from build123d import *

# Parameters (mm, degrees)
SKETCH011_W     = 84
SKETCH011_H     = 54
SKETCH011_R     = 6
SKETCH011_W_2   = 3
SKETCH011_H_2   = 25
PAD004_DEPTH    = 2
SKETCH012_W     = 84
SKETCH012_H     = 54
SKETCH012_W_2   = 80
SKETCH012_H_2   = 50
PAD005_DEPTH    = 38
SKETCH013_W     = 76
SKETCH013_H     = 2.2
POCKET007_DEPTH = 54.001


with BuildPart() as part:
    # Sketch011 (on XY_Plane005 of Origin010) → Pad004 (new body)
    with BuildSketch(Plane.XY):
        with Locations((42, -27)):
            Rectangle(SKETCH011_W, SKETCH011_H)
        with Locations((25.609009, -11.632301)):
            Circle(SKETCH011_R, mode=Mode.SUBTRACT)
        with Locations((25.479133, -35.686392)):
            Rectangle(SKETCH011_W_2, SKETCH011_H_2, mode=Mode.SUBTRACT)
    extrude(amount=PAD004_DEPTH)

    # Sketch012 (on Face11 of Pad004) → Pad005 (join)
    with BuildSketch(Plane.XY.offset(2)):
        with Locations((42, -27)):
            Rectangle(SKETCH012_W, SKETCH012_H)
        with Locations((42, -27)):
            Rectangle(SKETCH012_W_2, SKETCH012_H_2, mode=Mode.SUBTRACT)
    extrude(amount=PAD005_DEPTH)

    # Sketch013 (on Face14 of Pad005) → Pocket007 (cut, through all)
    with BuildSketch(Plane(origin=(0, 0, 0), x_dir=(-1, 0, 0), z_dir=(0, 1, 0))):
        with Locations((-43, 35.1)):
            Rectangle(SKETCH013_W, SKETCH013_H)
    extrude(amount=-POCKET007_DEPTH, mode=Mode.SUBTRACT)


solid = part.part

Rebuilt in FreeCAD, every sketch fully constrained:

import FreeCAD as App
import Part
import Sketcher

V = App.Vector
Q = App.Units.Quantity


def add_polygon(sketch, points):
    """Adds a closed chain of lines whose ends are joined by coincident constraints."""
    first, n = sketch.GeometryCount, len(points)
    for a, b in zip(points, points[1:] + points[:1]):
        sketch.addGeometry(Part.LineSegment(App.Vector(*a, 0), App.Vector(*b, 0)), False)
    for i in range(n):
        sketch.addConstraint(Sketcher.Constraint("Coincident", first + i, 2, first + (i + 1) % n, 1))

doc = App.newDocument("Part")
body = doc.addObject("PartDesign::Body", "Body")

# Sketch on XY plane
sketch1 = doc.addObject("Sketcher::SketchObject", "Sketch")
body.addObject(sketch1)
sketch1.AttachmentSupport = (doc.XY_Plane, [""])
sketch1.MapMode = "FlatFace"
add_polygon(sketch1, [(0, 0), (0, -54), (84, -54), (84, 0)])  # lines 0-3
add_polygon(sketch1, [(27, -48.2), (24, -48.2), (24, -23.2), (27, -23.2)])  # lines 4-7
sketch1.addGeometry(Part.Circle(V(25.6, -11.6, 0), V(0, 0, 1), 6), False)  # 8
sketch1.addConstraint(Sketcher.Constraint("Vertical", 0))
sketch1.addConstraint(Sketcher.Constraint("Horizontal", 1))
sketch1.addConstraint(Sketcher.Constraint("Vertical", 2))
sketch1.addConstraint(Sketcher.Constraint("Horizontal", 3))
sketch1.addConstraint(Sketcher.Constraint("Horizontal", 4))
sketch1.addConstraint(Sketcher.Constraint("Vertical", 5))
sketch1.addConstraint(Sketcher.Constraint("Horizontal", 6))
sketch1.addConstraint(Sketcher.Constraint("Vertical", 7))
sketch1.addConstraint(Sketcher.Constraint("Coincident", 3, 2, -1, 1))
sketch1.addConstraint(Sketcher.Constraint("Diameter", 8, Q("12 mm")))
sketch1.addConstraint(Sketcher.Constraint("DistanceX", 1, 1, 1, 2, Q("84 mm")))
sketch1.addConstraint(Sketcher.Constraint("DistanceX", 4, 2, 4, 1, Q("3 mm")))
sketch1.addConstraint(Sketcher.Constraint("DistanceY", 0, 2, 0, 1, Q("54 mm")))
sketch1.addConstraint(Sketcher.Constraint("DistanceY", 5, 1, 5, 2, Q("25 mm")))
sketch1.addConstraint(Sketcher.Constraint("DistanceY", 8, 3, -1, 1, Q("11.632301 mm")))
sketch1.addConstraint(Sketcher.Constraint("DistanceX", -1, 1, 8, 3, Q("25.609009 mm")))
sketch1.addConstraint(Sketcher.Constraint("DistanceY", 4, 2, -1, 1, Q("48.186392 mm")))
sketch1.addConstraint(Sketcher.Constraint("DistanceX", -1, 1, 4, 2, Q("23.979133 mm")))
pad1 = doc.addObject("PartDesign::Pad", "Pad")
body.addObject(pad1)
pad1.Profile = sketch1
pad1.Length = 2

# Sketch on XY plane
sketch2 = doc.addObject("Sketcher::SketchObject", "Sketch001")
body.addObject(sketch2)
sketch2.AttachmentSupport = (doc.XY_Plane, [""])
sketch2.MapMode = "FlatFace"
sketch2.AttachmentOffset = App.Placement(V(0, 0, 2), App.Rotation())
add_polygon(sketch2, [(0, 0), (0, -54), (84, -54), (84, 0)])  # lines 0-3
add_polygon(sketch2, [(82, -52), (2, -52), (2, -2), (82, -2)])  # lines 4-7
sketch2.addConstraint(Sketcher.Constraint("Vertical", 0))
sketch2.addConstraint(Sketcher.Constraint("Horizontal", 1))
sketch2.addConstraint(Sketcher.Constraint("Vertical", 2))
sketch2.addConstraint(Sketcher.Constraint("Horizontal", 3))
sketch2.addConstraint(Sketcher.Constraint("Horizontal", 4))
sketch2.addConstraint(Sketcher.Constraint("Vertical", 5))
sketch2.addConstraint(Sketcher.Constraint("Horizontal", 6))
sketch2.addConstraint(Sketcher.Constraint("Vertical", 7))
sketch2.addConstraint(Sketcher.Constraint("Coincident", 3, 2, -1, 1))
sketch2.addConstraint(Sketcher.Constraint("DistanceX", 1, 1, 1, 2, Q("84 mm")))
sketch2.addConstraint(Sketcher.Constraint("DistanceX", 4, 2, 4, 1, Q("80 mm")))
sketch2.addConstraint(Sketcher.Constraint("DistanceY", 0, 2, 0, 1, Q("54 mm")))
sketch2.addConstraint(Sketcher.Constraint("DistanceY", 5, 1, 5, 2, Q("50 mm")))
sketch2.addConstraint(Sketcher.Constraint("DistanceX", -1, 1, 4, 2, Q("2 mm")))
sketch2.addConstraint(Sketcher.Constraint("DistanceY", 4, 2, -1, 1, Q("52 mm")))
pad2 = doc.addObject("PartDesign::Pad", "Pad001")
body.addObject(pad2)
pad2.Profile = sketch2
pad2.Length = 38

# Sketch on XZ plane
sketch3 = doc.addObject("Sketcher::SketchObject", "Sketch002")
body.addObject(sketch3)
sketch3.AttachmentSupport = (doc.XZ_Plane, [""])
sketch3.MapMode = "FlatFace"
add_polygon(sketch3, [(81, 36.2), (81, 34), (5, 34), (5, 36.2)])  # lines 0-3
sketch3.addConstraint(Sketcher.Constraint("Vertical", 0))
sketch3.addConstraint(Sketcher.Constraint("Horizontal", 1))
sketch3.addConstraint(Sketcher.Constraint("Vertical", 2))
sketch3.addConstraint(Sketcher.Constraint("Horizontal", 3))
sketch3.addConstraint(Sketcher.Constraint("DistanceX", 1, 2, 1, 1, Q("76 mm")))
sketch3.addConstraint(Sketcher.Constraint("DistanceY", 0, 2, 0, 1, Q("2.2 mm")))
sketch3.addConstraint(Sketcher.Constraint("DistanceX", -1, 1, 0, 2, Q("81 mm")))
sketch3.addConstraint(Sketcher.Constraint("DistanceY", -1, 1, 0, 2, Q("34 mm")))
pocket1 = doc.addObject("PartDesign::Pocket", "Pocket")
body.addObject(pocket1)
pocket1.Profile = sketch3
pocket1.Type = "ThroughAll"
pocket1.Reversed = True

doc.recompute()
